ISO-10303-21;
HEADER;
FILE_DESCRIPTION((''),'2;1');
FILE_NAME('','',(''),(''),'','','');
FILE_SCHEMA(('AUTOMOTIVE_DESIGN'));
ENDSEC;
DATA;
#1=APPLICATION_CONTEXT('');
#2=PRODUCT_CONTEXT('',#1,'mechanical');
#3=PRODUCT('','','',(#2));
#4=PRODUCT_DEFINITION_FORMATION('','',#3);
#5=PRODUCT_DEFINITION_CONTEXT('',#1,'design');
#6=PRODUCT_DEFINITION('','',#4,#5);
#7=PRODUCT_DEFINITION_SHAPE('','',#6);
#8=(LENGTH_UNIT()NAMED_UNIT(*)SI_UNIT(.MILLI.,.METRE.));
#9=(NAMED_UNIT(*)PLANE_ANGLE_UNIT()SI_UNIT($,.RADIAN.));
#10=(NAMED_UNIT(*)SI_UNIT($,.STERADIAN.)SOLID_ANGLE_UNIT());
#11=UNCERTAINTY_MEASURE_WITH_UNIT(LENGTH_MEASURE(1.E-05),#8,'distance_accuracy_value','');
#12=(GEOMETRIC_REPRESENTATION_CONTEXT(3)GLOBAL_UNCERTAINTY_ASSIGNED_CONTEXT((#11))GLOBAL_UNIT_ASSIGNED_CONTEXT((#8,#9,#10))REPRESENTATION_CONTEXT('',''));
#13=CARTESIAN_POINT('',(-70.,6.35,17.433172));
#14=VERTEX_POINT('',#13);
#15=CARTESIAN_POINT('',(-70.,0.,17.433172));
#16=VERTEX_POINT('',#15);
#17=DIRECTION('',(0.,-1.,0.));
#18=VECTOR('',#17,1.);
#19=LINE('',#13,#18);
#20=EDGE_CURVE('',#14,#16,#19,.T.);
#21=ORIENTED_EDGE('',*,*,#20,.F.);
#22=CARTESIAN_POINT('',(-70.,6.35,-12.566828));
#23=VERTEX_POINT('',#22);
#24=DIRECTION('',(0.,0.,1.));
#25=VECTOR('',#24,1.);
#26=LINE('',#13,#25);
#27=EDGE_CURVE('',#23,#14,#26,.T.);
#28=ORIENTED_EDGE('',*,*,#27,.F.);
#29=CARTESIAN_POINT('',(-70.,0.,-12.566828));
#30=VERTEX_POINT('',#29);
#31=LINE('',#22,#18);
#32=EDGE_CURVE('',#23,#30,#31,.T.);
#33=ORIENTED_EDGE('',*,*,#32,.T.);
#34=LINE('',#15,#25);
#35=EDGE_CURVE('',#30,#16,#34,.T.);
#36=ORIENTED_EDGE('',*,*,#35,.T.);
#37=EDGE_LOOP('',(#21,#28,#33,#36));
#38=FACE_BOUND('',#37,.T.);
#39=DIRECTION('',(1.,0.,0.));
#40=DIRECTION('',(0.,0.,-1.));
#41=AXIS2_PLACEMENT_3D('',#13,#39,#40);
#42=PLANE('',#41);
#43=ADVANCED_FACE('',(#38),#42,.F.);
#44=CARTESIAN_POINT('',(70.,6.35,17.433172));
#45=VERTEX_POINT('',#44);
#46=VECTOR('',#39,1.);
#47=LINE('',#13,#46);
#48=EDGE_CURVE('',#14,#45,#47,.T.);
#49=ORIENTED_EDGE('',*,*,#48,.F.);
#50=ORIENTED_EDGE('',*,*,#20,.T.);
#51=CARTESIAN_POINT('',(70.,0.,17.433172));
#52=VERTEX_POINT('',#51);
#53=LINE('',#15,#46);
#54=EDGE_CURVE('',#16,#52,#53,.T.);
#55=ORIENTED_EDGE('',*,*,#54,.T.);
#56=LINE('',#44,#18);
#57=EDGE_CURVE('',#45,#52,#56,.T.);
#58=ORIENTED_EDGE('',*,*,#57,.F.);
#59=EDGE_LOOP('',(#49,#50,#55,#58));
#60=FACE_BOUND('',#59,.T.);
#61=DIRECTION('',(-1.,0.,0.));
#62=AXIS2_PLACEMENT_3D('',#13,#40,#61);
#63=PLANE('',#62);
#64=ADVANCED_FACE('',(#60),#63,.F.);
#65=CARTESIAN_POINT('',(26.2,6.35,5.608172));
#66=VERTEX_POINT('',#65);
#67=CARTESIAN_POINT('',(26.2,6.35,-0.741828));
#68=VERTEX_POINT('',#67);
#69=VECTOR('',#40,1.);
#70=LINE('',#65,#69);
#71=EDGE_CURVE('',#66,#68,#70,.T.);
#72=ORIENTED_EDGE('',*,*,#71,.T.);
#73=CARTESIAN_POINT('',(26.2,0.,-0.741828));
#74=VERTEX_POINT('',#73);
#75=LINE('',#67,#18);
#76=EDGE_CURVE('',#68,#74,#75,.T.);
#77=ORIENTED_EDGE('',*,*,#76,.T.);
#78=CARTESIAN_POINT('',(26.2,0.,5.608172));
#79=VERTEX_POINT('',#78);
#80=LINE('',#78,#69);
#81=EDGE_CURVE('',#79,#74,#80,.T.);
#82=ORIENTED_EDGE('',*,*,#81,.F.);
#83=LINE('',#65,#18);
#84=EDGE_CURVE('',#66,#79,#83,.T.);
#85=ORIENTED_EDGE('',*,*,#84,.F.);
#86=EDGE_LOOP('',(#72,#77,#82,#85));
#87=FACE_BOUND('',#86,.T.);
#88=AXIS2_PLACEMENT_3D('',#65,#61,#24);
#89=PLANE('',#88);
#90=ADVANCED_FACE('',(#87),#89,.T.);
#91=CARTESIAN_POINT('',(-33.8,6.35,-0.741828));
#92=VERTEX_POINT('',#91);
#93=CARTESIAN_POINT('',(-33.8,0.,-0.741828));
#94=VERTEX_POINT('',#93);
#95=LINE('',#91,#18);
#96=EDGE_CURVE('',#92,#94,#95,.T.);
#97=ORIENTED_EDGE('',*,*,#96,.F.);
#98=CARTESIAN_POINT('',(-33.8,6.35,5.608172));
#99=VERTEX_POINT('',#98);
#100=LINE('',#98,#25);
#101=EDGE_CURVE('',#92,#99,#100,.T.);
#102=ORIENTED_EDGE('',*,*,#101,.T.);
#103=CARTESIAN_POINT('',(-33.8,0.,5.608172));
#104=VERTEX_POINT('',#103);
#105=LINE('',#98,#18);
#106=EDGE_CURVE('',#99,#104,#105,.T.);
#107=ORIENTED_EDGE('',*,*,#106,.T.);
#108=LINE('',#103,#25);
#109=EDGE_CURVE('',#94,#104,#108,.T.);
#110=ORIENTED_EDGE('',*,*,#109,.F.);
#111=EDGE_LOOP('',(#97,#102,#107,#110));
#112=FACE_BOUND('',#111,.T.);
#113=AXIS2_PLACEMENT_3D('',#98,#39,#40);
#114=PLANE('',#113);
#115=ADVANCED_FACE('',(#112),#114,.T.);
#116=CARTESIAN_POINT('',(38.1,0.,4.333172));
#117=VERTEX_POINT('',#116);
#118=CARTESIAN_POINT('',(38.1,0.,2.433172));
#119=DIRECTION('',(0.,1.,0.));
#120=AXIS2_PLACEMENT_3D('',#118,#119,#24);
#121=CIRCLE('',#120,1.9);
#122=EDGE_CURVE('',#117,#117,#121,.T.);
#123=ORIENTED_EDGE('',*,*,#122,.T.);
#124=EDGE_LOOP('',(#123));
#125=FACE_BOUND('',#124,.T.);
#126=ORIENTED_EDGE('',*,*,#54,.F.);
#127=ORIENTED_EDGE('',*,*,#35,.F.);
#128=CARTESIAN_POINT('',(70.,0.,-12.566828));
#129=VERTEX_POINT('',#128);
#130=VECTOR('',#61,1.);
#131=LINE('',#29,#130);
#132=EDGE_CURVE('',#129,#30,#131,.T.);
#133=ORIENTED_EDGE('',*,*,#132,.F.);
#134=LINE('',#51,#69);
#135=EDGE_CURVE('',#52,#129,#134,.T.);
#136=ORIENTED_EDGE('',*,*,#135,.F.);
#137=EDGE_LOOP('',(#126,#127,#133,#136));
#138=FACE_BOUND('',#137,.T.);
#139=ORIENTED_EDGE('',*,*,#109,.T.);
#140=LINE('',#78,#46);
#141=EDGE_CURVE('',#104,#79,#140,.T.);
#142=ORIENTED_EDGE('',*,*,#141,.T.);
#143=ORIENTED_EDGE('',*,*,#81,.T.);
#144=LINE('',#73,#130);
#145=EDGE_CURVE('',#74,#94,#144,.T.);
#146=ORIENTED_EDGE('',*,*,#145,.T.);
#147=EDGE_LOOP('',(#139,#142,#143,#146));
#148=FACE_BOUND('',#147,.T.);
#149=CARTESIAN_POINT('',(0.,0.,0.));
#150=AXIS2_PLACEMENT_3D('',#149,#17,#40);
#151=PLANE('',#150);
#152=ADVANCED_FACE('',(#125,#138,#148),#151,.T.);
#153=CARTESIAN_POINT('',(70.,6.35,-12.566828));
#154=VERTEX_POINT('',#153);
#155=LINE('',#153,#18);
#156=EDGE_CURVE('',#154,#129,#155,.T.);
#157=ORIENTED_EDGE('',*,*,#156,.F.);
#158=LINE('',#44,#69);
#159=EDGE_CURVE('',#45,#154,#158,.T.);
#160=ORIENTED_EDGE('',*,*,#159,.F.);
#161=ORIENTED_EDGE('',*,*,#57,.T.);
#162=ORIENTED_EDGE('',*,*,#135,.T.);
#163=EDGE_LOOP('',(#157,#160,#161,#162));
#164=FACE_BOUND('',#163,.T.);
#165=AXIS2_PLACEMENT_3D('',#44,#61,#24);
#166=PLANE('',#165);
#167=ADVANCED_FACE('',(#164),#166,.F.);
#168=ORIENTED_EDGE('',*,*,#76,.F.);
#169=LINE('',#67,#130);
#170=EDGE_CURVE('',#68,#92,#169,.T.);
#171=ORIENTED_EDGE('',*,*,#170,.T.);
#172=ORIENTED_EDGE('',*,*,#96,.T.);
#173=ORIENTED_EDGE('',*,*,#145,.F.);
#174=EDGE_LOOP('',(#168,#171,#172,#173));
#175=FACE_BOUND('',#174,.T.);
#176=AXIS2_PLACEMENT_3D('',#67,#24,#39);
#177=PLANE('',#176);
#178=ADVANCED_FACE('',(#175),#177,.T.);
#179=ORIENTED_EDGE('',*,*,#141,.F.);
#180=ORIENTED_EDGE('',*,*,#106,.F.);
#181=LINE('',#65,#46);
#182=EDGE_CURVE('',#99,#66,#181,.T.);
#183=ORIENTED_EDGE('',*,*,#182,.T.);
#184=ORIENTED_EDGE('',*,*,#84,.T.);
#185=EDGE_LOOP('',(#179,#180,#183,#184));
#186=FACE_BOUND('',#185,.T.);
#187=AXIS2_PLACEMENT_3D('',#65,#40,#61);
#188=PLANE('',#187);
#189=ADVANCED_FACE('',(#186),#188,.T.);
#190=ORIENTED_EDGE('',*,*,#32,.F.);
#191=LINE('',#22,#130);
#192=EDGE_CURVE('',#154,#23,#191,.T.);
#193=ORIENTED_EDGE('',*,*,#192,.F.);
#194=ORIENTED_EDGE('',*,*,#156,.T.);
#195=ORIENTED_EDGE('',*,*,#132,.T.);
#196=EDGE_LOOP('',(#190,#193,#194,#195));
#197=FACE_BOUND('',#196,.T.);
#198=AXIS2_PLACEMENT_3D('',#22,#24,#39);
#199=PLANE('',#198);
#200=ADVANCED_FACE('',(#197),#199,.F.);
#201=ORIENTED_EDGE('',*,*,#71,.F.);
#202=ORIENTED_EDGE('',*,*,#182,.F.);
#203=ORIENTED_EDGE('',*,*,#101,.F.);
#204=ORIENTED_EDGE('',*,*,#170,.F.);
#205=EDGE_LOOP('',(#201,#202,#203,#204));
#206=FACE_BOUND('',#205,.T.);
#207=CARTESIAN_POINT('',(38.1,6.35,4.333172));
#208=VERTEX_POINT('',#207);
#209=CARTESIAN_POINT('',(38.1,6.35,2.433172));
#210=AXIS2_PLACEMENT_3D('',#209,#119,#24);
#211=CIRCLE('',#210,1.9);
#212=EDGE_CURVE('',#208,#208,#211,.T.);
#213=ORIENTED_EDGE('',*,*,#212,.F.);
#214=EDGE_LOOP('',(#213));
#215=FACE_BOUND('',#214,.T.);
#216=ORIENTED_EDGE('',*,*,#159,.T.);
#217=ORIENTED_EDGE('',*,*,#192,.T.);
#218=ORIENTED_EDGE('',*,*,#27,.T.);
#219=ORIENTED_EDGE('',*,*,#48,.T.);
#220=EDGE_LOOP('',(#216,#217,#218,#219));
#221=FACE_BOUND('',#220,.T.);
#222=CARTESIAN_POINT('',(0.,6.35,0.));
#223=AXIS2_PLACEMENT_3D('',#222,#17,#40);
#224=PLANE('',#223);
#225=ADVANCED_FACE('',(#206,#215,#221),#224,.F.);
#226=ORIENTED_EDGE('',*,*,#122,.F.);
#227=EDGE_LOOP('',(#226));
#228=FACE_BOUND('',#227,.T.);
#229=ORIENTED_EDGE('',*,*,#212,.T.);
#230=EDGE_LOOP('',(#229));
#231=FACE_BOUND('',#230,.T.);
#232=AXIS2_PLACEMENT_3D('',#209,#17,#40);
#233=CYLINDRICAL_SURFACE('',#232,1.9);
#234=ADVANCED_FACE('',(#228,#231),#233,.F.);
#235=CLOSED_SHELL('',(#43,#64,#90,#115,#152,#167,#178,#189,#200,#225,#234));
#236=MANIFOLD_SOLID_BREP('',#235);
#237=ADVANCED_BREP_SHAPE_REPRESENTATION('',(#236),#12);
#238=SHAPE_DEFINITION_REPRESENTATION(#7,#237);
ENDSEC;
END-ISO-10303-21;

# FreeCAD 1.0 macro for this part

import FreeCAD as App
import Part
import Sketcher

doc = App.newDocument("Part")
body = doc.addObject("PartDesign::Body", "Body")

# Sketch on XZ plane
sketch1 = body.newObject("Sketcher::SketchObject", "Sketch")
sketch1.AttachmentSupport = (doc.getObject("XZ_Plane"), [""])
sketch1.MapMode = "FlatFace"
sketch1.addGeometry(Part.LineSegment(App.Vector(-70, -12.6, 0), App.Vector(-70, 17.4, 0)), False)
sketch1.addGeometry(Part.LineSegment(App.Vector(-70, 17.4, 0), App.Vector(70, 17.4, 0)), False)
sketch1.addGeometry(Part.LineSegment(App.Vector(70, 17.4, 0), App.Vector(70, -12.6, 0)), False)
sketch1.addGeometry(Part.LineSegment(App.Vector(70, -12.6, 0), App.Vector(-70, -12.6, 0)), False)
sketch1.addGeometry(Part.LineSegment(App.Vector(26.2, 5.6, 0), App.Vector(-33.8, 5.6, 0)), False)
sketch1.addGeometry(Part.LineSegment(App.Vector(-33.8, 5.6, 0), App.Vector(-33.8, -0.7, 0)), False)
sketch1.addGeometry(Part.LineSegment(App.Vector(-33.8, -0.7, 0), App.Vector(26.2, -0.7, 0)), False)
sketch1.addGeometry(Part.LineSegment(App.Vector(26.2, -0.7, 0), App.Vector(26.2, 5.6, 0)), False)
sketch1.addGeometry(Part.Circle(App.Vector(38.1, 2.4, 0), App.Vector(0, 0, 1), 1.9), False)
sketch1.addConstraint(Sketcher.Constraint("Coincident", 0, 2, 1, 1))
sketch1.addConstraint(Sketcher.Constraint("Coincident", 1, 2, 2, 1))
sketch1.addConstraint(Sketcher.Constraint("Coincident", 2, 2, 3, 1))
sketch1.addConstraint(Sketcher.Constraint("Coincident", 3, 2, 0, 1))
sketch1.addConstraint(Sketcher.Constraint("Coincident", 4, 2, 5, 1))
sketch1.addConstraint(Sketcher.Constraint("Coincident", 5, 2, 6, 1))
sketch1.addConstraint(Sketcher.Constraint("Coincident", 6, 2, 7, 1))
sketch1.addConstraint(Sketcher.Constraint("Coincident", 7, 2, 4, 1))
sketch1.addConstraint(Sketcher.Constraint("Vertical", 0))
sketch1.addConstraint(Sketcher.Constraint("Horizontal", 1))
sketch1.addConstraint(Sketcher.Constraint("Vertical", 2))
sketch1.addConstraint(Sketcher.Constraint("Horizontal", 3))
sketch1.addConstraint(Sketcher.Constraint("Horizontal", 4))
sketch1.addConstraint(Sketcher.Constraint("Vertical", 5))
sketch1.addConstraint(Sketcher.Constraint("Horizontal", 6))
sketch1.addConstraint(Sketcher.Constraint("Vertical", 7))
sketch1.addConstraint(Sketcher.Constraint("Diameter", 8, 3.8))
sketch1.addConstraint(Sketcher.Constraint("DistanceX", 1, 1, 1, 2, 140.0))
sketch1.addConstraint(Sketcher.Constraint("DistanceX", 4, 2, 4, 1, 60.0))
sketch1.addConstraint(Sketcher.Constraint("DistanceY", 0, 1, 0, 2, 30.0))
sketch1.addConstraint(Sketcher.Constraint("DistanceX", 0, 2, -1, 1, 70.0))
sketch1.addConstraint(Sketcher.Constraint("DistanceY", 8, 3, 0, 2, 15.0))
sketch1.addConstraint(Sketcher.Constraint("DistanceY", 5, 2, 5, 1, 6.35))
sketch1.addConstraint(Sketcher.Constraint("DistanceX", -1, 1, 8, 3, 38.1))
sketch1.addConstraint(Sketcher.Constraint("DistanceX", 4, 2, -1, 1, 33.8))
sketch1.addConstraint(Sketcher.Constraint("DistanceY", 4, 2, 0, 2, 11.825))
sketch1.addConstraint(Sketcher.Constraint("DistanceY", -1, 1, 8, 3, 2.433172))
pad1 = body.newObject("PartDesign::Pad", "Pad")
pad1.Profile = sketch1
pad1.Length = 6.35
pad1.Reversed = True

doc.recompute()
